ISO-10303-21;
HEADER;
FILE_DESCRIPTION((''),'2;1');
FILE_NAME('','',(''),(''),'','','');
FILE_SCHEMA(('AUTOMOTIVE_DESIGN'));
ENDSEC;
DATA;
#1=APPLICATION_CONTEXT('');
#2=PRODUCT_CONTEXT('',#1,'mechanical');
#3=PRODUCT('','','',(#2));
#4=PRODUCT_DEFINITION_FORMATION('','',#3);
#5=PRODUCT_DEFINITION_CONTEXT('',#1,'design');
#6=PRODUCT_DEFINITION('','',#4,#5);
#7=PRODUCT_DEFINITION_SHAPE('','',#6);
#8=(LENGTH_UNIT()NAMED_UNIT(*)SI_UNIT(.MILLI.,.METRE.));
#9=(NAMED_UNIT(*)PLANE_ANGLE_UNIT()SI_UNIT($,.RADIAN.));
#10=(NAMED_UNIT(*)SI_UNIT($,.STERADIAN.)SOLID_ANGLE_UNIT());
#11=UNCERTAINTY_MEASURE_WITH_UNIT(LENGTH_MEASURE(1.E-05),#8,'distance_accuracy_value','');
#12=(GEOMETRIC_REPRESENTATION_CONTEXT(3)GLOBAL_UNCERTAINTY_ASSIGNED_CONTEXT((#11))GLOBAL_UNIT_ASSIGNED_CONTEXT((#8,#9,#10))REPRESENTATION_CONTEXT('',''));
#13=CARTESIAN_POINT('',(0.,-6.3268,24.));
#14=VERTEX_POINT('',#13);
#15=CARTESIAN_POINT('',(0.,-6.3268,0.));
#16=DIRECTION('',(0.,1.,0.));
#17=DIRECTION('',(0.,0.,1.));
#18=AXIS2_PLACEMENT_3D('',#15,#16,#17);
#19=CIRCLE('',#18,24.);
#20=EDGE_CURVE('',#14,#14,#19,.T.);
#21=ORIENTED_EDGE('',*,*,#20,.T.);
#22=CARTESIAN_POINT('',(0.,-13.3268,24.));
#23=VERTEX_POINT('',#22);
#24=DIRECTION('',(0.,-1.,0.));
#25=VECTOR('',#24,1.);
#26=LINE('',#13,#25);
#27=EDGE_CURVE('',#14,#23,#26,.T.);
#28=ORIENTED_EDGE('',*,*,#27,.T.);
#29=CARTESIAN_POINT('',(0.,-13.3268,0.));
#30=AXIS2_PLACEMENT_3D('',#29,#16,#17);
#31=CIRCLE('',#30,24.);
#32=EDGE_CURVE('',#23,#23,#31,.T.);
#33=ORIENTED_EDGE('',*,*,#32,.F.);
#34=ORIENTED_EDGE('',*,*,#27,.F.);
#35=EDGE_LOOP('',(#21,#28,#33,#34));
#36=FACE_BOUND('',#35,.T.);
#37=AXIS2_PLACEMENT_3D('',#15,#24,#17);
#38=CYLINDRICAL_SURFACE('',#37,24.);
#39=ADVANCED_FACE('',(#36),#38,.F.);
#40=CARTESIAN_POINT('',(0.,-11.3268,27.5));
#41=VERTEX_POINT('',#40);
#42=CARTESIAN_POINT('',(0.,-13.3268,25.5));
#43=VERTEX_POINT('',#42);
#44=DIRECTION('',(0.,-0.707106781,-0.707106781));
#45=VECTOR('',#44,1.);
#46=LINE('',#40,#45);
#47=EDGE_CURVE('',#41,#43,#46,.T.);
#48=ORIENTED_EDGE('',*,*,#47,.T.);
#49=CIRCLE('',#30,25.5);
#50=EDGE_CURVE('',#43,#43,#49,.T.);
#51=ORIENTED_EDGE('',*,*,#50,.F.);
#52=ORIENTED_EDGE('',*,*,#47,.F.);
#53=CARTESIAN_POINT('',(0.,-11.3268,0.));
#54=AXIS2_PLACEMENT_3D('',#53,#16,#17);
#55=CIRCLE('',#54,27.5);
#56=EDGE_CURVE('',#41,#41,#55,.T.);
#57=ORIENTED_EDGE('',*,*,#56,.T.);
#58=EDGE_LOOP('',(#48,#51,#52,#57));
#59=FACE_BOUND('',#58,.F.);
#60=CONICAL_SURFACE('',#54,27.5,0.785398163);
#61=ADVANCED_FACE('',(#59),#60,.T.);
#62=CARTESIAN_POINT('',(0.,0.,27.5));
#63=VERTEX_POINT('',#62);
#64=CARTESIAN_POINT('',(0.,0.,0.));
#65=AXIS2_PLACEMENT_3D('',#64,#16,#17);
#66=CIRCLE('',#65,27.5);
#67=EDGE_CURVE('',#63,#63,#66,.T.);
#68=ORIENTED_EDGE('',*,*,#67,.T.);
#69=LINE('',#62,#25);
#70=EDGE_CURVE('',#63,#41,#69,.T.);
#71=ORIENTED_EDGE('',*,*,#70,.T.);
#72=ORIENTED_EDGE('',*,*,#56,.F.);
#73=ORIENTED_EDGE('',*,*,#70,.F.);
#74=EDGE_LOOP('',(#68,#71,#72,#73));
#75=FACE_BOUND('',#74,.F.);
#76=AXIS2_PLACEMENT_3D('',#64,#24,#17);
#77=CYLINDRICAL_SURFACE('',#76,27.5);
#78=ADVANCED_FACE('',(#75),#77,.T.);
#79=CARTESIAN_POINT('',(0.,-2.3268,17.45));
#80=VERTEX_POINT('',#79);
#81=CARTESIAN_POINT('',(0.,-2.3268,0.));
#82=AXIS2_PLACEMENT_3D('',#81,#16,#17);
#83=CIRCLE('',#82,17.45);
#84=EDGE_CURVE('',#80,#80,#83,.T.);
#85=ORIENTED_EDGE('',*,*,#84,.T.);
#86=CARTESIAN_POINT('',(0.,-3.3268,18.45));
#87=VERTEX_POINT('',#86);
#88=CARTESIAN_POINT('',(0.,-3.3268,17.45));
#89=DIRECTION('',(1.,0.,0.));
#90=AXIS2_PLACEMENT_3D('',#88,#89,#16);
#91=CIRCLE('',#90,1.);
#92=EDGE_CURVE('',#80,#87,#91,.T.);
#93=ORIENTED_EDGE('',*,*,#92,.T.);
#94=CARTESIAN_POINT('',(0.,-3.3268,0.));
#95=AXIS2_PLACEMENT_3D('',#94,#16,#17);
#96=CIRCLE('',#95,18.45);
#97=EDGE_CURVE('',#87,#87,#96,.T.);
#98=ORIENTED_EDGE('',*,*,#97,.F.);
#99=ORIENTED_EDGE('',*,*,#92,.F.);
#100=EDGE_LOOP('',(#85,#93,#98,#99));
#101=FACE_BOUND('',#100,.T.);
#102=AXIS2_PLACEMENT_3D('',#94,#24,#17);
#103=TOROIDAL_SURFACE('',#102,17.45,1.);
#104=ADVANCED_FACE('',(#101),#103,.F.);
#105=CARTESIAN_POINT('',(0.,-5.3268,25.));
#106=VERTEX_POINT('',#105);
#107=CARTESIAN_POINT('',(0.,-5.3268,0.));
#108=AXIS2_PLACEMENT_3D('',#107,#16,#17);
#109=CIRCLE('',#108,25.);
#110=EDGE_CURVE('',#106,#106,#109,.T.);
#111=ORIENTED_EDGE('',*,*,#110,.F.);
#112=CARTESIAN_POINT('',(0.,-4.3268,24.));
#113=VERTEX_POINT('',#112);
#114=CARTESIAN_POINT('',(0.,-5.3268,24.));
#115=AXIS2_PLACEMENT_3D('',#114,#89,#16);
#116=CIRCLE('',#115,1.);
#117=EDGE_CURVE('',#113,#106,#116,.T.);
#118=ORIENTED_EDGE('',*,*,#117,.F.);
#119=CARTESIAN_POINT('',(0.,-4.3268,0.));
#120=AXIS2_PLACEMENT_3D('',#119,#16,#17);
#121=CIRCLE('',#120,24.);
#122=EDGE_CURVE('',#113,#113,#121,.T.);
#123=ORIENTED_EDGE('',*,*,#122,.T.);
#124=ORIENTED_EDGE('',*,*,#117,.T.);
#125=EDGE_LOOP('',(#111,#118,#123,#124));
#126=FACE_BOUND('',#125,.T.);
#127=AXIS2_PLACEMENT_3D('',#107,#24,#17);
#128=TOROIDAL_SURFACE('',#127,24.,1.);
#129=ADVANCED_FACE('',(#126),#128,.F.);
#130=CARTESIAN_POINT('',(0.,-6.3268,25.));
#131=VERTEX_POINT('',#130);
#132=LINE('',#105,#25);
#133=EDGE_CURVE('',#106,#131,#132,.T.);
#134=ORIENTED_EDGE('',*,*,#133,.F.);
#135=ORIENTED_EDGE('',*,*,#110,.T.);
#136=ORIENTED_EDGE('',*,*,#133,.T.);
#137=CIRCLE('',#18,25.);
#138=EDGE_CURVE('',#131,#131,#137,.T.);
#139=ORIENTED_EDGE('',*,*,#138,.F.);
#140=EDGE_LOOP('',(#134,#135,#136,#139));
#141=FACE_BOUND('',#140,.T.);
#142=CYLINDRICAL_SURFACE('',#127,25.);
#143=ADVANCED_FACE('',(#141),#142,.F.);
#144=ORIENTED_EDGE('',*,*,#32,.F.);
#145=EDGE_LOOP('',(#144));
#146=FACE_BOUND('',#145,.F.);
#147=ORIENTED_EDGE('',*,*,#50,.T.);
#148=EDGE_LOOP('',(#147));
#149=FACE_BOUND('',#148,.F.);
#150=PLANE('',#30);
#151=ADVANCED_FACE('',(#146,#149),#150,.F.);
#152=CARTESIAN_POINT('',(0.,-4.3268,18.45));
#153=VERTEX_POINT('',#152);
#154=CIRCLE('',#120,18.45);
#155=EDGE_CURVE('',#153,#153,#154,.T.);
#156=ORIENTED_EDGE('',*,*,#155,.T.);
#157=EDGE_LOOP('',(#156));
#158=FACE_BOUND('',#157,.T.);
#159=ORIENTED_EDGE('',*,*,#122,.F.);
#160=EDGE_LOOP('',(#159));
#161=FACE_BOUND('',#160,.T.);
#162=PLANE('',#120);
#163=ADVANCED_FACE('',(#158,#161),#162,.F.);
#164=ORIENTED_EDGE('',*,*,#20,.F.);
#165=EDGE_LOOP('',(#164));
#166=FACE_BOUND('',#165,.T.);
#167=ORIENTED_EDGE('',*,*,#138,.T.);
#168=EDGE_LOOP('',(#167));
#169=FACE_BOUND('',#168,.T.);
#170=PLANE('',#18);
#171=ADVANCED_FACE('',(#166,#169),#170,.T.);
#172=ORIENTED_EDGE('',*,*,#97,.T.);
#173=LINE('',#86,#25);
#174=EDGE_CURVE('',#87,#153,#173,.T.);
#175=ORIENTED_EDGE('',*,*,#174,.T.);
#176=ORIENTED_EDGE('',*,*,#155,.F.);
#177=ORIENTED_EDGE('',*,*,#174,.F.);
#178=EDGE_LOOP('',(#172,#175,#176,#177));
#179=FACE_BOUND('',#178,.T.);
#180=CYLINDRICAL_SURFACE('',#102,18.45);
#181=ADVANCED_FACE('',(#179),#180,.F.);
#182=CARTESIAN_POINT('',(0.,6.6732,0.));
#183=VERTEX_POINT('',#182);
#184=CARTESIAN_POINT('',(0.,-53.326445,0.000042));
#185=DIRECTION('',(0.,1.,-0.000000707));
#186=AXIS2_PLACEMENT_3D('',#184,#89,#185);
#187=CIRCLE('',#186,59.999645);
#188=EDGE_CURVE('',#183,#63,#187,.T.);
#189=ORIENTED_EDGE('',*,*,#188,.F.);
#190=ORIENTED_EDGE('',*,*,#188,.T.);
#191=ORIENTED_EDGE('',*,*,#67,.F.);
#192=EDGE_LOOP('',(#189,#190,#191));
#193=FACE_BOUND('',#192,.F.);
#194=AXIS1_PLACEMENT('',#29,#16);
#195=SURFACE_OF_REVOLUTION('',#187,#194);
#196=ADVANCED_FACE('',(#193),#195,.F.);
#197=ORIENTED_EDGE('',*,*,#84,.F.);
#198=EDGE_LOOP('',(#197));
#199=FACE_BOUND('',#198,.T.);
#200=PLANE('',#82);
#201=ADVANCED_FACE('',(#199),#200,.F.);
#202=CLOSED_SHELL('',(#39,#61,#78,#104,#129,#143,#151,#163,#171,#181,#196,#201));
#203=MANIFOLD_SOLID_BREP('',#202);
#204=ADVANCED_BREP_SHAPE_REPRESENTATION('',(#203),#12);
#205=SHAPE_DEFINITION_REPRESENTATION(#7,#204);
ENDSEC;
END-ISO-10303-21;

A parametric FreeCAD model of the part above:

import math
import FreeCAD as App
import Part
import Sketcher
from FreeCAD import Vector
Q = App.Units.Quantity

doc = App.newDocument("Part")
body = doc.addObject("PartDesign::Body", "Body")

# Sketch on YZ plane
sketch1 = doc.addObject("Sketcher::SketchObject", "Sketch")
body.addObject(sketch1)
sketch1.AttachmentSupport = (doc.YZ_Plane, [""])
sketch1.MapMode = "FlatFace"
sketch1.addGeometry([
    Part.ArcOfCircle(Part.Circle(Vector(-53.3, 0, 0), Vector(0, 0, 1), 60), math.radians(0), math.radians(27)),  # 0
    Part.LineSegment(Vector(0, 27.5, 0), Vector(-11.3, 27.5, 0)),  # 1
    Part.LineSegment(Vector(-11.3, 27.5, 0), Vector(-13.3, 25.5, 0)),  # 2
    Part.LineSegment(Vector(-13.3, 25.5, 0), Vector(-13.3, 24, 0)),  # 3
    Part.LineSegment(Vector(-13.3, 24, 0), Vector(-6.3, 24, 0)),  # 4
    Part.LineSegment(Vector(-6.3, 24, 0), Vector(-6.3, 25, 0)),  # 5
    Part.LineSegment(Vector(-6.3, 25, 0), Vector(-5.3, 25, 0)),  # 6
    Part.ArcOfCircle(Part.Circle(Vector(-5.3, 24, 0), Vector(0, 0, 1), 1), math.radians(0), math.radians(90)),  # 7
    Part.LineSegment(Vector(-4.3, 24, 0), Vector(-4.3, 18.4, 0)),  # 8
    Part.LineSegment(Vector(-4.3, 18.4, 0), Vector(-3.3, 18.4, 0)),  # 9
    Part.ArcOfCircle(Part.Circle(Vector(-3.3, 17.4, 0), Vector(0, 0, 1), 1), math.radians(0), math.radians(90)),  # 10
    Part.LineSegment(Vector(-2.3, 17.4, 0), Vector(-2.3, 0, 0)),  # 11
    Part.LineSegment(Vector(-2.3, 0, 0), Vector(6.7, 0, 0)),  # 12
], False)
sketch1.addConstraint([
    Sketcher.Constraint("Coincident", 0, 2, 1, 1),
    Sketcher.Constraint("Coincident", 1, 2, 2, 1),
    Sketcher.Constraint("Coincident", 2, 2, 3, 1),
    Sketcher.Constraint("Coincident", 3, 2, 4, 1),
    Sketcher.Constraint("Coincident", 4, 2, 5, 1),
    Sketcher.Constraint("Coincident", 5, 2, 6, 1),
    Sketcher.Constraint("Tangent", 6, 2, 7, 2),
    Sketcher.Constraint("Tangent", 7, 1, 8, 1),
    Sketcher.Constraint("Coincident", 8, 2, 9, 1),
    Sketcher.Constraint("Tangent", 9, 2, 10, 2),
    Sketcher.Constraint("Tangent", 10, 1, 11, 1),
    Sketcher.Constraint("Coincident", 11, 2, 12, 1),
    Sketcher.Constraint("Coincident", 12, 2, 0, 1),
    Sketcher.Constraint("Horizontal", 1),
    Sketcher.Constraint("Vertical", 3),
    Sketcher.Constraint("Horizontal", 4),
    Sketcher.Constraint("Vertical", 5),
    Sketcher.Constraint("Horizontal", 6),
    Sketcher.Constraint("Vertical", 8),
    Sketcher.Constraint("Horizontal", 9),
    Sketcher.Constraint("Vertical", 11),
    Sketcher.Constraint("Horizontal", 12),
    Sketcher.Constraint("Equal", 7, 10),
    Sketcher.Constraint("PointOnObject", 0, 3, -1),
    Sketcher.Constraint("PointOnObject", 0, 2, -2),
    Sketcher.Constraint("PointOnObject", 11, 2, -1),
    Sketcher.Constraint("Horizontal", 7, 3, 3, 2),
    Sketcher.Constraint("Equal", 6, 9),
    Sketcher.Constraint("Equal", 9, 5),
    Sketcher.Constraint("Radius", 0, Q("60 mm")),
    Sketcher.Constraint("Radius", 7, Q("1 mm")),
    Sketcher.Constraint("DistanceX", 4, 1, 4, 2, Q("7 mm")),
    Sketcher.Constraint("DistanceY", -1, 1, 7, 3, Q("24 mm")),
    Sketcher.Constraint("DistanceX", 2, 2, 1, 2, Q("2 mm")),
    Sketcher.Constraint("DistanceY", 2, 2, 1, 2, Q("2 mm")),
    Sketcher.Constraint("DistanceY", -1, 1, 0, 2, Q("27.5 mm")),
    Sketcher.Constraint("DistanceX", 12, 1, 12, 2, Q("9 mm")),
    Sketcher.Constraint("DistanceY", -1, 1, 8, 2, Q("18.45 mm")),
])
revolution = doc.addObject("PartDesign::Revolution", "Revolution")
body.addObject(revolution)
revolution.Profile = sketch1
revolution.ReferenceAxis = (sketch1, ["H_Axis"])
revolution.Angle = 360

doc.recompute()
